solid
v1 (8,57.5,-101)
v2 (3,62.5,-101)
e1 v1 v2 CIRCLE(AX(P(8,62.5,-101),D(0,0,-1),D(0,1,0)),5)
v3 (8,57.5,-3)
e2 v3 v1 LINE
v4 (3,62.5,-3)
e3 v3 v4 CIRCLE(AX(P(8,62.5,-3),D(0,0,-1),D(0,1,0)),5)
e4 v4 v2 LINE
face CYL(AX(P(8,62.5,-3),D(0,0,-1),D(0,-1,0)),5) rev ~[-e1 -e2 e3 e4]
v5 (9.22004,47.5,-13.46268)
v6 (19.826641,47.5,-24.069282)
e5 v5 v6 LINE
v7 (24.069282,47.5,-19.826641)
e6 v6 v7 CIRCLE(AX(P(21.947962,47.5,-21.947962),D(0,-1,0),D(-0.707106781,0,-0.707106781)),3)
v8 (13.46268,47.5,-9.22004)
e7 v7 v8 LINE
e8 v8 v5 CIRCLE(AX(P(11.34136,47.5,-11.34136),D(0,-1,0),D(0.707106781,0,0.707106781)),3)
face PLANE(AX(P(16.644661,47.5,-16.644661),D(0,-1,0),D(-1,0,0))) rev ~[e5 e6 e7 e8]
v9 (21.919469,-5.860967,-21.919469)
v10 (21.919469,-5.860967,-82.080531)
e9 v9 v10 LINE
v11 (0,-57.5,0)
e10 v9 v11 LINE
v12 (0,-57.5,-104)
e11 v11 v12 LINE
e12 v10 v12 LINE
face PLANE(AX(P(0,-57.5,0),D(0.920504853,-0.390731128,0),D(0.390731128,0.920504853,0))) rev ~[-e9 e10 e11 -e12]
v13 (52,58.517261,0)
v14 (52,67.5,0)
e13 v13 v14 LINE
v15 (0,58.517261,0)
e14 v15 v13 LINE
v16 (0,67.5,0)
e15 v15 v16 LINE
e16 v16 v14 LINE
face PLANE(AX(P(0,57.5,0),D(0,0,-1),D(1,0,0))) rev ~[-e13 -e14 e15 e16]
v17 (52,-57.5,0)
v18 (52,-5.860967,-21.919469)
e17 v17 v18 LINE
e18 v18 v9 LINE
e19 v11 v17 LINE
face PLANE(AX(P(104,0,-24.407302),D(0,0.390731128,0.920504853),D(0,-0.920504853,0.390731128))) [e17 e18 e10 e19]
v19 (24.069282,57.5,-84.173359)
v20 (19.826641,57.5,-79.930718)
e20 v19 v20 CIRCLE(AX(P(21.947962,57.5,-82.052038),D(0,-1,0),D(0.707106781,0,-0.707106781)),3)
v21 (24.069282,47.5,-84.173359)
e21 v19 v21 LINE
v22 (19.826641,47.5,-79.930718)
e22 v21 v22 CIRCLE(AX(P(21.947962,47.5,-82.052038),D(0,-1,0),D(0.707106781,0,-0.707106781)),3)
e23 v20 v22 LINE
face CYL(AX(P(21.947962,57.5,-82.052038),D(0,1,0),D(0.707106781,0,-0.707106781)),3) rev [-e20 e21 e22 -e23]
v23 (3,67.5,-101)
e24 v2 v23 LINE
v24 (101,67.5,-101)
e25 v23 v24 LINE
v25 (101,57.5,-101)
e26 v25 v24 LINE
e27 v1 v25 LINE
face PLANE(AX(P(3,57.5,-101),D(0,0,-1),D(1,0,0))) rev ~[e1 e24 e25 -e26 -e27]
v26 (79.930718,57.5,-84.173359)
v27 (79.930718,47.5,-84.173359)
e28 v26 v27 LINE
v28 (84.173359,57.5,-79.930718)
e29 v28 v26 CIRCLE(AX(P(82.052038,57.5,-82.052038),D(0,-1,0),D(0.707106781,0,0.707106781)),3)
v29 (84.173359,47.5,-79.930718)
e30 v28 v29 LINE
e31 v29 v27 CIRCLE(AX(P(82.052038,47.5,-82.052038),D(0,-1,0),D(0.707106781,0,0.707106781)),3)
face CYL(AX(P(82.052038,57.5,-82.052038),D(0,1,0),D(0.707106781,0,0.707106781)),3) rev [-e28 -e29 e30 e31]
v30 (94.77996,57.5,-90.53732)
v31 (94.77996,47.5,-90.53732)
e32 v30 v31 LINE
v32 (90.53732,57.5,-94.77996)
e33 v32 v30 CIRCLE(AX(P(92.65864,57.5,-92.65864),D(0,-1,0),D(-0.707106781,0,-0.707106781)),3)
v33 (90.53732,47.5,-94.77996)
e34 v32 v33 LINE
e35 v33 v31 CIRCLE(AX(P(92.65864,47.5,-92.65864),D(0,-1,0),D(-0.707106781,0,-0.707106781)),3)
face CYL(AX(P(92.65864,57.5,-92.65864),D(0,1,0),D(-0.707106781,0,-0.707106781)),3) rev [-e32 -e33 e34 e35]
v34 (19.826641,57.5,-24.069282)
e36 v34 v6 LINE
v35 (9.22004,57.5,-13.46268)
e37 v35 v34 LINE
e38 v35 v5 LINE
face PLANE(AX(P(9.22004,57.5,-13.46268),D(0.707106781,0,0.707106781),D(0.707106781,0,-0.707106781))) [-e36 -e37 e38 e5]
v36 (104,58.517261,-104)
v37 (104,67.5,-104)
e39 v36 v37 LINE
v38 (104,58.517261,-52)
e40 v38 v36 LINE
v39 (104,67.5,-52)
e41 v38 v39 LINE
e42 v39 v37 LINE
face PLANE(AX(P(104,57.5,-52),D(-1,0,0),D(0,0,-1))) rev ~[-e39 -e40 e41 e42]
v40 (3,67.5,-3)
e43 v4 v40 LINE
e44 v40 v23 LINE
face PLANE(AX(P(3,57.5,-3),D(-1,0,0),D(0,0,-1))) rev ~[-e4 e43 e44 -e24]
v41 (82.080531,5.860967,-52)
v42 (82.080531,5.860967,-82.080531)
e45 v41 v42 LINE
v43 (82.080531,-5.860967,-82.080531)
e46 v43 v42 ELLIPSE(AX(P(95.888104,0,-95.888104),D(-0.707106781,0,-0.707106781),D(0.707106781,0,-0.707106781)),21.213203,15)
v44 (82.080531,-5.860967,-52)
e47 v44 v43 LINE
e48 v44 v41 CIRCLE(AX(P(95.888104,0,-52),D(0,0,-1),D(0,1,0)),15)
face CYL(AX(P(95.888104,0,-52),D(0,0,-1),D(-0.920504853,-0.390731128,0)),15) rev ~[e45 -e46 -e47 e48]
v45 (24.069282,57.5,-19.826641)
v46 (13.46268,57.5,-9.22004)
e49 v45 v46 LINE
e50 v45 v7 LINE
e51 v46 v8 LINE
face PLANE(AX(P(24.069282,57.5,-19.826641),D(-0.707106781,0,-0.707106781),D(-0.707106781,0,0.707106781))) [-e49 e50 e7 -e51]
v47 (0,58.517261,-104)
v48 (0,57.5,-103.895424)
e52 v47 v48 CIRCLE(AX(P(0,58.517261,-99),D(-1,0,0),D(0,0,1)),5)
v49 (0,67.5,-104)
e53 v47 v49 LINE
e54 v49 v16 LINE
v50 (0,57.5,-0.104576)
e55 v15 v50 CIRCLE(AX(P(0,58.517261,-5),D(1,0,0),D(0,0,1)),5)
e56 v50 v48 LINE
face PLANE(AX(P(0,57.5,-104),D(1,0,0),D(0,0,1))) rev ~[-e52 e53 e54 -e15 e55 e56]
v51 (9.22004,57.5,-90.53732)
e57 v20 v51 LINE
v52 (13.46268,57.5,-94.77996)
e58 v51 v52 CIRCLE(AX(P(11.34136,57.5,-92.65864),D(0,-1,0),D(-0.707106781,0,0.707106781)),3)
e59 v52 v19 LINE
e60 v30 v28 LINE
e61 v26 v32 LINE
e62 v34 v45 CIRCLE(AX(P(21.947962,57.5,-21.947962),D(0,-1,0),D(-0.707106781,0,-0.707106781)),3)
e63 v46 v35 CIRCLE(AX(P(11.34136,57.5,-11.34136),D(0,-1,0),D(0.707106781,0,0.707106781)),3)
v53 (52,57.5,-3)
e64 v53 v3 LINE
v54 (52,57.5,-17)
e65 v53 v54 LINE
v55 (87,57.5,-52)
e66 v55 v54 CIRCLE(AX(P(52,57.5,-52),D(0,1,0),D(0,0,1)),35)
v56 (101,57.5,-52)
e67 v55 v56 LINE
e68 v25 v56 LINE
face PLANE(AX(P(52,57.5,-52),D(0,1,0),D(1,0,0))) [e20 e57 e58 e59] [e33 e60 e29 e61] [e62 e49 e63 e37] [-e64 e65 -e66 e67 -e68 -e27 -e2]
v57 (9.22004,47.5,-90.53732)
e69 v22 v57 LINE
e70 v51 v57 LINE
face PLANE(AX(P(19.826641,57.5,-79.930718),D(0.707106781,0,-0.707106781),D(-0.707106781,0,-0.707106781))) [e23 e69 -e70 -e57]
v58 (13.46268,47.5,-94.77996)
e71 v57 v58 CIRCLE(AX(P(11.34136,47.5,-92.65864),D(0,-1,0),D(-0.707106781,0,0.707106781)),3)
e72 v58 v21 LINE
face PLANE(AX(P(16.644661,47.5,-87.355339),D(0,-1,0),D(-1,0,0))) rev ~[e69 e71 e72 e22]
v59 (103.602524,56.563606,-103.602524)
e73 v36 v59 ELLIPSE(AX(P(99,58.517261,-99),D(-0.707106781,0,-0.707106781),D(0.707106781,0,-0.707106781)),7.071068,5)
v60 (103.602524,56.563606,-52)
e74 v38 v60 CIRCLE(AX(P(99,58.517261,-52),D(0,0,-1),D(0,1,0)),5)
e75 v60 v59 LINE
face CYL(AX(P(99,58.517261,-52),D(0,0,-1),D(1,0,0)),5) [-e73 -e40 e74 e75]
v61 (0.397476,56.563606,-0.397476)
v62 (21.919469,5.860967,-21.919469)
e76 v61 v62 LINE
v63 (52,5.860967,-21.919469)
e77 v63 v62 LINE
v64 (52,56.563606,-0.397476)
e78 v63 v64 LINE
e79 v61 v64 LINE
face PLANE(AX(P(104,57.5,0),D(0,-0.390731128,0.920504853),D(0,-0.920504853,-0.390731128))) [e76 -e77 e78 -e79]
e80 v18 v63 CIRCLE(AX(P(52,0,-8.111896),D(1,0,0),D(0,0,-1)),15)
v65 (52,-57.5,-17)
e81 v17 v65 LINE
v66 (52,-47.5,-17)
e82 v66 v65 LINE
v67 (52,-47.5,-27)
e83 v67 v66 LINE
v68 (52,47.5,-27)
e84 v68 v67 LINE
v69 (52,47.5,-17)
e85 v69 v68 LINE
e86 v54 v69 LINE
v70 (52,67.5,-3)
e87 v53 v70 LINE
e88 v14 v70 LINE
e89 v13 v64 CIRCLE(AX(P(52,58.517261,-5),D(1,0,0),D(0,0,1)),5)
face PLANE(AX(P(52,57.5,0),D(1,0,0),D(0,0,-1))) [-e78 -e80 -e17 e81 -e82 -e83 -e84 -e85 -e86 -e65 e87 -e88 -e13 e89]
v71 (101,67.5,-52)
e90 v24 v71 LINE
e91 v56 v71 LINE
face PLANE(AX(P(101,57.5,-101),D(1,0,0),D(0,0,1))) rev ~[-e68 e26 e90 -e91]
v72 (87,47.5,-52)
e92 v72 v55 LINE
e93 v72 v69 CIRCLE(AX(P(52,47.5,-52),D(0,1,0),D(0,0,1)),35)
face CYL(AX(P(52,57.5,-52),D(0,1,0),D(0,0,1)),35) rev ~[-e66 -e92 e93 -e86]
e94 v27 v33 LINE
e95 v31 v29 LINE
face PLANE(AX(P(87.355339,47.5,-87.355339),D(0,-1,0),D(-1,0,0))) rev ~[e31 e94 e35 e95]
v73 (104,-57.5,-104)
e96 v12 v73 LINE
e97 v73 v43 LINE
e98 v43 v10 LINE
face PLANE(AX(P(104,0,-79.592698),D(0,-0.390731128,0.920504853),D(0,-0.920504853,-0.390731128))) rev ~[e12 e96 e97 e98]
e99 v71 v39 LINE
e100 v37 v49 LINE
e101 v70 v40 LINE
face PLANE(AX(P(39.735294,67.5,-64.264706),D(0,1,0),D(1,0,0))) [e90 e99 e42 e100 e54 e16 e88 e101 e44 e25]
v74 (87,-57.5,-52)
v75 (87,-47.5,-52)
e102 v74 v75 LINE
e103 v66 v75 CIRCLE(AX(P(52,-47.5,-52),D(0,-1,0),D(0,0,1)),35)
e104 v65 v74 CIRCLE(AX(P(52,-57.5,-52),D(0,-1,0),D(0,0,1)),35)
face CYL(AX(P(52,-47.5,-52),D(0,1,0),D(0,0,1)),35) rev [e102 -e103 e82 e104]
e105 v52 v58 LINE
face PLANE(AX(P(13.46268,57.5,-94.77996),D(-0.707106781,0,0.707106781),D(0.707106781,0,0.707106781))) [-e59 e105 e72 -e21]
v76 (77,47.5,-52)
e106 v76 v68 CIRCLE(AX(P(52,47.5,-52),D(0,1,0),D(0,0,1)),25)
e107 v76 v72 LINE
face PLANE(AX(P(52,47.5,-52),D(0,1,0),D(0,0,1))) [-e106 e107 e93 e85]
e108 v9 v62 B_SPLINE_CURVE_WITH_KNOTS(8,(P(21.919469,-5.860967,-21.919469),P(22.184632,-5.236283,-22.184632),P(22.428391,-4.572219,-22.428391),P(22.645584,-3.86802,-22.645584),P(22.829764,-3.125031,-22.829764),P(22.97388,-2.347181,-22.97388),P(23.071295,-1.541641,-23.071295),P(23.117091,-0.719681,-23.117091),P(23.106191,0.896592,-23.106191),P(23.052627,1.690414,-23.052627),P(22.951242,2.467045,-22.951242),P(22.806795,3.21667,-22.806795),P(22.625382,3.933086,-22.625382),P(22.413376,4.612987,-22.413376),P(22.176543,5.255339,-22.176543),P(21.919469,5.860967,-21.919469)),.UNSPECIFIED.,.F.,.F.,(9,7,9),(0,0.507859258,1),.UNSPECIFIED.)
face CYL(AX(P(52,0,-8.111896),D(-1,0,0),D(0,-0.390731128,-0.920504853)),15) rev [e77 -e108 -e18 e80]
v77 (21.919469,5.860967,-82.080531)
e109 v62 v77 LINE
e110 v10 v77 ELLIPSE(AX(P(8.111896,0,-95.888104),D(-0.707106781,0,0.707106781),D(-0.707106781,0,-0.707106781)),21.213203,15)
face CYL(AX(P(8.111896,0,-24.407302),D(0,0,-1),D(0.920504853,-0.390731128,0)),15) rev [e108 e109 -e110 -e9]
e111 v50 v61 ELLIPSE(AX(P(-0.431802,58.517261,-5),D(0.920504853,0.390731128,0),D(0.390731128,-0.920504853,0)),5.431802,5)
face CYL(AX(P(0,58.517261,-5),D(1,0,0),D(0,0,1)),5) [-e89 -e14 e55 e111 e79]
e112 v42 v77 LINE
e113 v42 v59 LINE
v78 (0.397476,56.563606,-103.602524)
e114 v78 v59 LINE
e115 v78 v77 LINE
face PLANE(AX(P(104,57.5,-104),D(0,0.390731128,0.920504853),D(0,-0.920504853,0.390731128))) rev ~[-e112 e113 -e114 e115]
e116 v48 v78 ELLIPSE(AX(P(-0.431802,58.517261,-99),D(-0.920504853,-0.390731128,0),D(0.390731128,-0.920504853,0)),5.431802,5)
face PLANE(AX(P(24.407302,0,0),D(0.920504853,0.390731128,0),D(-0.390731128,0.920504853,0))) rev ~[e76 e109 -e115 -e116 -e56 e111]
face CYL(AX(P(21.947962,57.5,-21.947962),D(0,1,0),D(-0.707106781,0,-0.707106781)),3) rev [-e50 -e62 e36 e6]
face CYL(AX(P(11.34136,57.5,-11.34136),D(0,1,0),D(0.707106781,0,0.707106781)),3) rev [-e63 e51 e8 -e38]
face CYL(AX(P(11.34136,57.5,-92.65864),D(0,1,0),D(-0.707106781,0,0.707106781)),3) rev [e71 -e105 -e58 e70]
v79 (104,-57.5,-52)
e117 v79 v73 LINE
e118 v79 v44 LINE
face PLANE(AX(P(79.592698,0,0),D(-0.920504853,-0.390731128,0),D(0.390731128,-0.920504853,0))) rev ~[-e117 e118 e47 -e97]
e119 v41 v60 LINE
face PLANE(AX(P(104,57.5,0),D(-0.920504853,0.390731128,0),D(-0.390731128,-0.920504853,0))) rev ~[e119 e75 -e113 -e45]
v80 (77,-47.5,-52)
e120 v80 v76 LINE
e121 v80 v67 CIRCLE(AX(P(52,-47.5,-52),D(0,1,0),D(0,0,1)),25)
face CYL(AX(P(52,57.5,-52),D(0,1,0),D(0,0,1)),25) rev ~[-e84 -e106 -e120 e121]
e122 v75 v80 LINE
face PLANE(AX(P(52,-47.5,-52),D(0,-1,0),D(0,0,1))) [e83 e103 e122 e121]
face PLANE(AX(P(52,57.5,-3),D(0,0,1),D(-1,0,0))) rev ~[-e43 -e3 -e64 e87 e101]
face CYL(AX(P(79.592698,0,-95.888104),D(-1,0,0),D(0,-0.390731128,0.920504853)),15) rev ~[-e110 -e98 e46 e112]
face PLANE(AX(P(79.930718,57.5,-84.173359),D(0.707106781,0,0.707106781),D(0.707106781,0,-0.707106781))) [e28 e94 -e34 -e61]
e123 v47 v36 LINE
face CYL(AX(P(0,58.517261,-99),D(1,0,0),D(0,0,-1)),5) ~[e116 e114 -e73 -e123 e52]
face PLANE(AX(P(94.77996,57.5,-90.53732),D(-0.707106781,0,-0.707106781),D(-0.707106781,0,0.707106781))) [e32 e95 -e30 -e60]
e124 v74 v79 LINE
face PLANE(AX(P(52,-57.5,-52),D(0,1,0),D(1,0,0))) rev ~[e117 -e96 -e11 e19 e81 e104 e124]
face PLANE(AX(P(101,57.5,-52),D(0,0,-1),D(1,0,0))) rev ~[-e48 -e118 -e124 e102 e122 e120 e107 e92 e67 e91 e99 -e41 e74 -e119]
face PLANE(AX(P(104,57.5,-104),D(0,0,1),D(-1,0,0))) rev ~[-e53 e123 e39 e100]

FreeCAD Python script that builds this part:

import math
import FreeCAD as App
import Part
import Sketcher
Q = App.Units.Quantity


def edges_at(feature, points):
    """Names of the edges that pass closest to the given points."""
    edges = feature.Shape.Edges
    near = lambda p: min(range(len(edges)), key=lambda i: edges[i].distToShape(Part.Vertex(*p))[0])
    return sorted({f"Edge{near(p) + 1}" for p in points})


def add_polygon(sketch, points):
    """Adds a closed chain of lines whose ends are joined by coincident constraints."""
    first, n = sketch.GeometryCount, len(points)
    for a, b in zip(points, points[1:] + points[:1]):
        sketch.addGeometry(Part.LineSegment(App.Vector(*a, 0), App.Vector(*b, 0)), False)
    for i in range(n):
        sketch.addConstraint(Sketcher.Constraint("Coincident", first + i, 2, first + (i + 1) % n, 1))

doc = App.newDocument("Part")
body = doc.addObject("PartDesign::Body", "Body")

sketch1 = body.newObject("Sketcher::SketchObject", "Sketch")
sketch1.AttachmentSupport = (doc.getObject("XZ_Plane"), [""])
sketch1.MapMode = "FlatFace"
add_polygon(sketch1, [(0, -104), (0, 0), (104, 0), (104, -104)])
sketch1.addConstraint([
    Sketcher.Constraint("Vertical", 0),
    Sketcher.Constraint("Horizontal", 1),
    Sketcher.Constraint("Vertical", 2),
    Sketcher.Constraint("Horizontal", 3),
    Sketcher.Constraint("Coincident", 0, 2, -1, 1),
    Sketcher.Constraint("Equal", 3, 0),
    Sketcher.Constraint("DistanceX", 1, 1, 1, 2, 104.0),
])
pad1 = body.newObject("PartDesign::Pad", "Pad")
pad1.Profile = sketch1
pad1.Length = 115
pad1.Midplane = True

sketch2 = body.newObject("Sketcher::SketchObject", "Sketch001")
sketch2.AttachmentSupport = (doc.getObject("XY_Plane"), [""])
sketch2.MapMode = "FlatFace"
add_polygon(sketch2, [(0, -58), (24, 0), (0, 58)])
add_polygon(sketch2, [(104, 58), (80, 0), (104, -58)])
sketch2.addConstraint([
    Sketcher.Constraint("Vertical", 2),
    Sketcher.Constraint("Vertical", 5),
    Sketcher.Constraint("Symmetric", 1, 2, 2, 2, -1, 1),
    Sketcher.Constraint("PointOnObject", 0, 2, -1),
    Sketcher.Constraint("PointOnObject", 3, 2, -1),
    Sketcher.Constraint("Parallel", 0, 3),
    Sketcher.Constraint("Parallel", 1, 4),
    Sketcher.Constraint("Horizontal", 2, 2, 4, 2),
    Sketcher.Constraint("DistanceY", 2, 2, 2, 1, 115.0),
    Sketcher.Constraint("Angle", 0, Q("67 deg")),
    Sketcher.Constraint("DistanceX", -1, 1, 4, 2, 104.0),
])
pocket1 = body.newObject("PartDesign::Pocket", "Pocket")
pocket1.Profile = sketch2
pocket1.Length = 104

sketch3 = body.newObject("Sketcher::SketchObject", "Sketch002")
sketch3.AttachmentSupport = (doc.getObject("YZ_Plane"), [""])
sketch3.MapMode = "FlatFace"
sketch3.AttachmentOffset = App.Placement(App.Vector(0, 0, 104), App.Rotation())
add_polygon(sketch3, [(0, -80), (58, -104), (-58, -104)])
add_polygon(sketch3, [(58, 0), (0, -24), (-58, 0)])
sketch3.addConstraint([
    Sketcher.Constraint("Horizontal", 1),
    Sketcher.Constraint("Horizontal", 5),
    Sketcher.Constraint("Symmetric", 4, 2, 5, 2, -1, 1),
    Sketcher.Constraint("PointOnObject", 2, 2, -2),
    Sketcher.Constraint("PointOnObject", 3, 2, -2),
    Sketcher.Constraint("Parallel", 2, 3),
    Sketcher.Constraint("Parallel", 0, 4),
    Sketcher.Constraint("Vertical", 1, 2, 4, 2),
    Sketcher.Constraint("DistanceX", 1, 2, 1, 1, 115.0),
    Sketcher.Constraint("Angle", 0, Q("-23 deg")),
    Sketcher.Constraint("DistanceY", 0, 2, -1, 1, 104.0),
])
pocket2 = body.newObject("PartDesign::Pocket", "Pocket001")
pocket2.Profile = sketch3
pocket2.Length = 104

sketch4 = body.newObject("Sketcher::SketchObject", "Sketch003")
sketch4.AttachmentSupport = (doc.getObject("XZ_Plane"), [""])
sketch4.MapMode = "FlatFace"
sketch4.AttachmentOffset = App.Placement(App.Vector(0, 0, -57.5), App.Rotation())
sketch4.addGeometry(Part.Circle(App.Vector(52, -52, 0), App.Vector(0, 0, 1), 25), False)
sketch4.addConstraint([
    Sketcher.Constraint("Diameter", 0, 50.0),
    Sketcher.Constraint("DistanceX", -1, 1, 0, 3, 52.0),
    Sketcher.Constraint("DistanceY", 0, 3, -1, 1, 52.0),
])
pocket3 = body.newObject("PartDesign::Pocket", "Pocket002")
pocket3.Profile = sketch4
pocket3.Length = 115
pocket3.Reversed = True

sketch5 = body.newObject("Sketcher::SketchObject", "Sketch004")
sketch5.AttachmentSupport = (doc.getObject("XZ_Plane"), [""])
sketch5.MapMode = "FlatFace"
sketch5.AttachmentOffset = App.Placement(App.Vector(0, 0, -57.5), App.Rotation())
sketch5.addGeometry([
    Part.Circle(App.Vector(52, -52, 0), App.Vector(0, 0, 1), 35),
    Part.Circle(App.Vector(52, -52, 0), App.Vector(0, 0, 1), 25),
], False)
sketch5.addConstraint([
    Sketcher.Constraint("Coincident", 1, 3, 0, 3),
    Sketcher.Constraint("Diameter", 0, 70.0),
    Sketcher.Constraint("Diameter", 1, 50.0),
    Sketcher.Constraint("DistanceX", -1, 1, 0, 3, 52.0),
    Sketcher.Constraint("DistanceY", 0, 3, -1, 1, 52.0),
])
pocket4 = body.newObject("PartDesign::Pocket", "Pocket003")
pocket4.Profile = sketch5
pocket4.Length = 10
pocket4.Reversed = True

sketch6 = body.newObject("Sketcher::SketchObject", "Sketch005")
sketch6.AttachmentSupport = (doc.getObject("XZ_Plane"), [""])
sketch6.MapMode = "FlatFace"
sketch6.AttachmentOffset = App.Placement(App.Vector(0, 0, 47.5), App.Rotation())
sketch6.addGeometry(Part.Circle(App.Vector(52, -52, 0), App.Vector(0, 0, 1), 35), False)
sketch6.addConstraint([
    Sketcher.Constraint("Diameter", 0, 70.0),
    Sketcher.Constraint("DistanceX", -1, 1, 0, 3, 52.0),
    Sketcher.Constraint("DistanceY", 0, 3, -1, 1, 52.0),
])
pocket5 = body.newObject("PartDesign::Pocket", "Pocket004")
pocket5.Profile = sketch6
pocket5.Length = 10
pocket5.Reversed = True

sketch7 = body.newObject("Sketcher::SketchObject", "Sketch006")
sketch7.AttachmentSupport = (doc.getObject("XZ_Plane"), [""])
sketch7.MapMode = "FlatFace"
sketch7.AttachmentOffset = App.Placement(App.Vector(0, 0, -57.5), App.Rotation())
add_polygon(sketch7, [(52, -52), (52, 0), (104, 0), (104, -52)])
sketch7.addConstraint([
    Sketcher.Constraint("Vertical", 0),
    Sketcher.Constraint("Horizontal", 1),
    Sketcher.Constraint("Vertical", 2),
    Sketcher.Constraint("Horizontal", 3),
    Sketcher.Constraint("PointOnObject", 0, 2, -1),
    Sketcher.Constraint("Equal", 3, 0),
    Sketcher.Constraint("DistanceX", 1, 1, 1, 2, 52.0),
    Sketcher.Constraint("DistanceX", -1, 1, 0, 2, 52.0),
])
pocket6 = body.newObject("PartDesign::Pocket", "Pocket005")
pocket6.Profile = sketch7
pocket6.Length = 115
pocket6.Reversed = True
doc.recompute()

fillet = body.newObject("PartDesign::Fillet", "Fillet")
fillet.Base = (pocket6, edges_at(pocket6, [
    (24.407, 0, -52),
    (79.593, 0, -65.796),
    (52, 0, -79.593),
    (38.204, 0, -24.407),
]))
fillet.Radius = 15

sketch8 = body.newObject("Sketcher::SketchObject", "Sketch007")
sketch8.AttachmentSupport = (doc.getObject("XZ_Plane"), [""])
sketch8.MapMode = "FlatFace"
sketch8.AttachmentOffset = App.Placement(App.Vector(0, 0, -57.5), App.Rotation())
add_polygon(sketch8, [(101, -101), (101, -52), (104, -52), (104, -104), (0, -104), (0, 0), (52, 0), (52, -3), (3, -3), (3, -101)])
sketch8.addConstraint([
    Sketcher.Constraint("Vertical", 0),
    Sketcher.Constraint("Horizontal", 1),
    Sketcher.Constraint("Vertical", 2),
    Sketcher.Constraint("Horizontal", 3),
    Sketcher.Constraint("Vertical", 4),
    Sketcher.Constraint("Horizontal", 5),
    Sketcher.Constraint("Vertical", 6),
    Sketcher.Constraint("Horizontal", 7),
    Sketcher.Constraint("Vertical", 8),
    Sketcher.Constraint("Horizontal", 9),
    Sketcher.Constraint("Coincident", 4, 2, -1, 1),
    Sketcher.Constraint("Equal", 7, 0),
    Sketcher.Constraint("Equal", 5, 2),
    Sketcher.Constraint("Equal", 3, 4),
    Sketcher.Constraint("Equal", 1, 6),
    Sketcher.Constraint("DistanceX", 1, 1, 1, 2, 3.0),
    Sketcher.Constraint("DistanceX", 3, 2, 3, 1, 104.0),
    Sketcher.Constraint("DistanceX", 5, 1, 5, 2, 52.0),
    Sketcher.Constraint("DistanceX", 7, 2, 7, 1, 49.0),
])
pad2 = body.newObject("PartDesign::Pad", "Pad001")
pad2.Profile = sketch8
pad2.Length = 10
pad2.Reversed = True

sketch9 = body.newObject("Sketcher::SketchObject", "Sketch008")
sketch9.AttachmentSupport = (doc.getObject("XZ_Plane"), [""])
sketch9.MapMode = "FlatFace"
sketch9.AttachmentOffset = App.Placement(App.Vector(0, 0, -57.5), App.Rotation())
sketch9.addGeometry([
    Part.LineSegment(App.Vector(24.1, -84.2, 0), App.Vector(13.5, -94.8, 0)),
    Part.ArcOfCircle(Part.Circle(App.Vector(11.3, -92.7, 0), App.Vector(0, 0, 1), 3), math.radians(135), math.radians(315)),
    Part.LineSegment(App.Vector(9.2, -90.5, 0), App.Vector(19.8, -79.9, 0)),
    Part.ArcOfCircle(Part.Circle(App.Vector(21.9, -82.1, 0), App.Vector(0, 0, 1), 3), math.radians(-45), math.radians(135)),
    Part.LineSegment(App.Vector(84.2, -79.9, 0), App.Vector(94.8, -90.5, 0)),
    Part.ArcOfCircle(Part.Circle(App.Vector(92.7, -92.7, 0), App.Vector(0, 0, 1), 3), math.radians(-135), math.radians(45)),
    Part.LineSegment(App.Vector(90.5, -94.8, 0), App.Vector(79.9, -84.2, 0)),
    Part.ArcOfCircle(Part.Circle(App.Vector(82.1, -82.1, 0), App.Vector(0, 0, 1), 3), math.radians(45), math.radians(225)),
    Part.LineSegment(App.Vector(13.5, -9.2, 0), App.Vector(24.1, -19.8, 0)),
    Part.ArcOfCircle(Part.Circle(App.Vector(21.9, -21.9, 0), App.Vector(0, 0, 1), 3), math.radians(-135), math.radians(45)),
    Part.LineSegment(App.Vector(19.8, -24.1, 0), App.Vector(9.2, -13.5, 0)),
    Part.ArcOfCircle(Part.Circle(App.Vector(11.3, -11.3, 0), App.Vector(0, 0, 1), 3), math.radians(45), math.radians(225)),
], False)
sketch9.addConstraint([
    Sketcher.Constraint("Tangent", 0, 2, 1, 2),
    Sketcher.Constraint("Tangent", 1, 1, 2, 1),
    Sketcher.Constraint("Tangent", 2, 2, 3, 2),
    Sketcher.Constraint("Tangent", 3, 1, 0, 1),
    Sketcher.Constraint("Tangent", 4, 2, 5, 2),
    Sketcher.Constraint("Tangent", 5, 1, 6, 1),
    Sketcher.Constraint("Tangent", 6, 2, 7, 2),
    Sketcher.Constraint("Tangent", 7, 1, 4, 1),
    Sketcher.Constraint("Tangent", 8, 2, 9, 2),
    Sketcher.Constraint("Tangent", 9, 1, 10, 1),
    Sketcher.Constraint("Tangent", 10, 2, 11, 2),
    Sketcher.Constraint("Tangent", 11, 1, 8, 1),
    Sketcher.Constraint("Equal", 1, 3),
    Sketcher.Constraint("Equal", 3, 5),
    Sketcher.Constraint("Equal", 5, 7),
    Sketcher.Constraint("Equal", 7, 9),
    Sketcher.Constraint("Equal", 9, 11),
    Sketcher.Constraint("Perpendicular", 2, 4),
    Sketcher.Constraint("Parallel", 6, 8),
    Sketcher.Constraint("Horizontal", 1, 3, 5, 3),
    Sketcher.Constraint("Horizontal", 3, 3, 7, 3),
    Sketcher.Constraint("Horizontal", 1, 1, 4, 2),
    Sketcher.Constraint("Vertical", 3, 3, 9, 3),
    Sketcher.Constraint("Vertical", 1, 3, 11, 3),
    Sketcher.Constraint("Radius", 1, 3.0),
    Sketcher.Constraint("Distance", 0, 15.0),
    Sketcher.Constraint("DistanceY", 0, 2, 9, 3, 72.831998),
    Sketcher.Constraint("DistanceX", 1, 1, 7, 3, 72.831998),
    Sketcher.Constraint("DistanceX", -1, 1, 1, 3, 11.34136),
    Sketcher.Constraint("DistanceY", 1, 3, -1, 1, 92.65864),
])
pocket7 = body.newObject("PartDesign::Pocket", "Pocket006")
pocket7.Profile = sketch9
pocket7.Length = 10
pocket7.Reversed = True
doc.recompute()

fillet2 = body.newObject("PartDesign::Fillet", "Fillet001")
fillet2.Base = (pocket7, edges_at(pocket7, [
    (104, 57.5, -78),
    (3, 57.5, -52),
    (52, 57.5, -104),
    (26, 57.5, 0),
]))
fillet2.Radius = 5

doc.recompute()
